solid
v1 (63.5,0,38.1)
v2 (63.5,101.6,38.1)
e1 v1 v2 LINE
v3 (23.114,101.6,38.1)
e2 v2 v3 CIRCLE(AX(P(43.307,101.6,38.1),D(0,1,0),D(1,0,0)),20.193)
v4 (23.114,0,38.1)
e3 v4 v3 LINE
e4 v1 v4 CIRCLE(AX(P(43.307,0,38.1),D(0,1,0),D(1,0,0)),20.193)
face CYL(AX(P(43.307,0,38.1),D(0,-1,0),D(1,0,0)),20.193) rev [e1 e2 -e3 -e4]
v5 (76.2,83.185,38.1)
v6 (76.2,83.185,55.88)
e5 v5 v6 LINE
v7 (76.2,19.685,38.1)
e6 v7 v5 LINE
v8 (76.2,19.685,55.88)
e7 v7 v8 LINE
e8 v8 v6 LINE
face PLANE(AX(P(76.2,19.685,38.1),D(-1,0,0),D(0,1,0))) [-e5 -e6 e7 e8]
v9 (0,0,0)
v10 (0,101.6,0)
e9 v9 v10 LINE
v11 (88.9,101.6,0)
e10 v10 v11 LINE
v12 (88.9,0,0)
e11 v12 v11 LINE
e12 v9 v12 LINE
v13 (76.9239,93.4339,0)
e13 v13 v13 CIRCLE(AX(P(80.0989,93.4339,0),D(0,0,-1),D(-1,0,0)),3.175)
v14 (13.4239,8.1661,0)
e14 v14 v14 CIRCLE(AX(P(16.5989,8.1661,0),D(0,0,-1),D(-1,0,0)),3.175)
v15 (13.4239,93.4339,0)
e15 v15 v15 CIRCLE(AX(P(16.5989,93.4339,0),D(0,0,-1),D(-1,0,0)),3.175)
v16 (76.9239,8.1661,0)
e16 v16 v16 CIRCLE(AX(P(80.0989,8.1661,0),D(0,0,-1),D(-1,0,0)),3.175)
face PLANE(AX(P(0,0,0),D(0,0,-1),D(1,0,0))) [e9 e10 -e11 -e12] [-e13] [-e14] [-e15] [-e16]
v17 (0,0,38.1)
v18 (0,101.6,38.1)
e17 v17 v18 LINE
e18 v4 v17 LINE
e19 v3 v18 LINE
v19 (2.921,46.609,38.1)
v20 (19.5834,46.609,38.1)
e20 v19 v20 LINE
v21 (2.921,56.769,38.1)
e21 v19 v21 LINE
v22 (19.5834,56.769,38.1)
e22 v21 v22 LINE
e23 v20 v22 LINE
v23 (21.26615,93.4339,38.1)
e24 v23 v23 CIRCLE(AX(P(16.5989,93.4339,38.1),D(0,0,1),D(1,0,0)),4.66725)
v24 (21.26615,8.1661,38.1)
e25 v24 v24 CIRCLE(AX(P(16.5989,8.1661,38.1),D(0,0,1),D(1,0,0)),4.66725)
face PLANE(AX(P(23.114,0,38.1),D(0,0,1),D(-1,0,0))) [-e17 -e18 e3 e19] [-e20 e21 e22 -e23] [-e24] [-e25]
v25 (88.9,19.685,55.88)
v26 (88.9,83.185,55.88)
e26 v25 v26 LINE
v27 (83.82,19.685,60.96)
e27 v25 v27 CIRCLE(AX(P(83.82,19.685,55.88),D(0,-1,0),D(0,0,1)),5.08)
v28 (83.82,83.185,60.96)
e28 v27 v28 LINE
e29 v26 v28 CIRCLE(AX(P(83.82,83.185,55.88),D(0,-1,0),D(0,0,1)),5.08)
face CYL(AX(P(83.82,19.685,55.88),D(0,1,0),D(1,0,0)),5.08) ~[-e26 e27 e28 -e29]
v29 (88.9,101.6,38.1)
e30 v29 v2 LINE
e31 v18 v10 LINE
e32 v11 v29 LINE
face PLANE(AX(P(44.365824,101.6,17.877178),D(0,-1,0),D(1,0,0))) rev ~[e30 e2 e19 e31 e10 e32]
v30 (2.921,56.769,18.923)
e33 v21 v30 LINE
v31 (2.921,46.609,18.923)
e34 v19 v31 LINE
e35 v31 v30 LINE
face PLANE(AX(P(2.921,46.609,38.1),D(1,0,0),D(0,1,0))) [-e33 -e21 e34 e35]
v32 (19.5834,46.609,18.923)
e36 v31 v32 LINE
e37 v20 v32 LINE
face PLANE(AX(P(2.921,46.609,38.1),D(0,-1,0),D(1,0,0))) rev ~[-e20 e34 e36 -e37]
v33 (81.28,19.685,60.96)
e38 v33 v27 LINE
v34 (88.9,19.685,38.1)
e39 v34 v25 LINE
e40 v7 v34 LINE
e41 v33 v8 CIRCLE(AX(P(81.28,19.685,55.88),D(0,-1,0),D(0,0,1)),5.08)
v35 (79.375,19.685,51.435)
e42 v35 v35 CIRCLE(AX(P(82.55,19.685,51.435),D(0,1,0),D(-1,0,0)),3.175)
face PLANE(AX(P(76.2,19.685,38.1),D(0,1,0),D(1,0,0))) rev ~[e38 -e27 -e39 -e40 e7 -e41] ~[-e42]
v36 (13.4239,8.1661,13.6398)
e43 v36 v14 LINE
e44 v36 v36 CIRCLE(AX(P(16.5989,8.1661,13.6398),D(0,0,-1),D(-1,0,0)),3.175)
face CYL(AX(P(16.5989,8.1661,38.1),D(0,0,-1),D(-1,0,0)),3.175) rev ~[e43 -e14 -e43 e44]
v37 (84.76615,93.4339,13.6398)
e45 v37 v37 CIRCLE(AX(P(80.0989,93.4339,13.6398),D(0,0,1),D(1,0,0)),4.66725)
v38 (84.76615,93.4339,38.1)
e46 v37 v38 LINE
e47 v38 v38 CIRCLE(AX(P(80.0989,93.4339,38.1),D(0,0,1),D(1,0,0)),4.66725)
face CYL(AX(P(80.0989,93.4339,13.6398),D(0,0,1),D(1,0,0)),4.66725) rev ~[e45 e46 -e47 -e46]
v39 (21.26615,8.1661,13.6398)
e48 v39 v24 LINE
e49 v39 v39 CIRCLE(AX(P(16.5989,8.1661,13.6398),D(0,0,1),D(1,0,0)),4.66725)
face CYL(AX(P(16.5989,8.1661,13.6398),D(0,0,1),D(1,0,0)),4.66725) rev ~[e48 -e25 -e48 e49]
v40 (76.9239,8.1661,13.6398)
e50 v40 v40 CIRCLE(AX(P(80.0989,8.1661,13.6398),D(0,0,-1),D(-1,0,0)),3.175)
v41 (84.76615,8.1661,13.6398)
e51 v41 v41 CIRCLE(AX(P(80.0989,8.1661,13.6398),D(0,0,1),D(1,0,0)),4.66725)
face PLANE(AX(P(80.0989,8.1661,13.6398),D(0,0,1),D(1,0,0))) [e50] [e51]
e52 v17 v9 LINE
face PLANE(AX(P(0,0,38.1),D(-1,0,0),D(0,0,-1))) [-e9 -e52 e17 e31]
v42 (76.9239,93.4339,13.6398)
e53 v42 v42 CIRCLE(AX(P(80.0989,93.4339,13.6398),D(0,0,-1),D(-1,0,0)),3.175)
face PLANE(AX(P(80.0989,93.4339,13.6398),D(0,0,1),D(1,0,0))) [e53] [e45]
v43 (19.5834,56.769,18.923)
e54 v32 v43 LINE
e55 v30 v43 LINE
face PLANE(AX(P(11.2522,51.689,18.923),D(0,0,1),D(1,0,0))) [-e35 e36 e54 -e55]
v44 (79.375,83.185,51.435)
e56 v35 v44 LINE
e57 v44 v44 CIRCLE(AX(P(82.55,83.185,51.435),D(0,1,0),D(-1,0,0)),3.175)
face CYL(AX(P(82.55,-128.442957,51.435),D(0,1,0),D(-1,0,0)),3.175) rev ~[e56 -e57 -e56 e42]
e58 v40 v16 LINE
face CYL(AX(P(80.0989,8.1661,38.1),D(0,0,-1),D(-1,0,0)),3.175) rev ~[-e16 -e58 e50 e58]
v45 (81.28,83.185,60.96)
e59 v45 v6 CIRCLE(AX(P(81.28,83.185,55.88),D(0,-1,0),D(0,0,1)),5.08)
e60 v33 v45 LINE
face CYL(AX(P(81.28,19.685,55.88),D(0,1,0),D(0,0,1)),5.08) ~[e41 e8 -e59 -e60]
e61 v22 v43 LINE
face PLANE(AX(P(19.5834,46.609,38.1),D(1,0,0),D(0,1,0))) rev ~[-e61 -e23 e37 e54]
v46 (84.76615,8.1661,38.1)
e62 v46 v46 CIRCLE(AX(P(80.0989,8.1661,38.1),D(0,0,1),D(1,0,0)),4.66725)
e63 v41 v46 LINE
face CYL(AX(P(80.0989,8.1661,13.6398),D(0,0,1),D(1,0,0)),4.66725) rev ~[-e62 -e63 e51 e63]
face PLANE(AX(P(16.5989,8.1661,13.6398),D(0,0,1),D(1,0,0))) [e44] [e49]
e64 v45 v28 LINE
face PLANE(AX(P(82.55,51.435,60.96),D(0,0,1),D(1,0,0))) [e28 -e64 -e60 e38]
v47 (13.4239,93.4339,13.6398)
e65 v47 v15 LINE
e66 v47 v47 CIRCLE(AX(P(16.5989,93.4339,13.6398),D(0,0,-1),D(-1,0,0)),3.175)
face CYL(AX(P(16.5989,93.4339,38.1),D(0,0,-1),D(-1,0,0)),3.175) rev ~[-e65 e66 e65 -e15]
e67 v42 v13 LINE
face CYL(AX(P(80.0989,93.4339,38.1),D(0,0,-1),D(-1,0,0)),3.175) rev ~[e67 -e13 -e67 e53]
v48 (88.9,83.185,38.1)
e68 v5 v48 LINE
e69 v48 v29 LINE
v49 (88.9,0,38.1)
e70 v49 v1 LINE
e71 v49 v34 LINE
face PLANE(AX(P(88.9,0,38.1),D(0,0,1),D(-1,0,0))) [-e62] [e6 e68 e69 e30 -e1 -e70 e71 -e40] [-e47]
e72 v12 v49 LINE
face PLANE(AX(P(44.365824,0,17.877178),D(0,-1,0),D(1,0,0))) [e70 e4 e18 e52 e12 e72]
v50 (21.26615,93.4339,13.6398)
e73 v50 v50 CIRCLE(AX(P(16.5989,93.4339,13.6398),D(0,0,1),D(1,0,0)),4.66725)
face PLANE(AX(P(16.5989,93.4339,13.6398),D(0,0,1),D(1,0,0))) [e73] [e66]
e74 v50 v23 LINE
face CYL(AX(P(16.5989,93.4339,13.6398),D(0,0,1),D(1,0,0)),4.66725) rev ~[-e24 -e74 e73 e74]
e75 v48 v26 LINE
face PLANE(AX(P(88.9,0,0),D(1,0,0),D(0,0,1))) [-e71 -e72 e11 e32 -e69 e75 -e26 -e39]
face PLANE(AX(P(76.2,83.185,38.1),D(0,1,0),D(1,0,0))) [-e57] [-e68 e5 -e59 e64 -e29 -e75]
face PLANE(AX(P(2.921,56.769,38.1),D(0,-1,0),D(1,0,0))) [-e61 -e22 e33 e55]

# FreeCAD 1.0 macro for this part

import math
import FreeCAD as App
import Part
import Sketcher

V = App.Vector
Q = App.Units.Quantity


def edges_at(feature, points):
    """Names of the edges that pass closest to the given points."""
    edges = feature.Shape.Edges
    near = lambda p: min(range(len(edges)), key=lambda i: edges[i].distToShape(Part.Vertex(*p))[0])
    return sorted({f"Edge{near(p) + 1}" for p in points})


def add_polygon(sketch, points):
    """Adds a closed chain of lines whose ends are joined by coincident constraints."""
    first, n = sketch.GeometryCount, len(points)
    for a, b in zip(points, points[1:] + points[:1]):
        sketch.addGeometry(Part.LineSegment(App.Vector(*a, 0), App.Vector(*b, 0)), False)
    for i in range(n):
        sketch.addConstraint(Sketcher.Constraint("Coincident", first + i, 2, first + (i + 1) % n, 1))

doc = App.newDocument("Part")
body = doc.addObject("PartDesign::Body", "Body")

sketch1 = doc.addObject("Sketcher::SketchObject", "Sketch")
body.addObject(sketch1)
sketch1.AttachmentSupport = (doc.XZ_Plane, [""])
sketch1.MapMode = "FlatFace"
sketch1.addGeometry([
    Part.LineSegment(V(0, 38.1, 0), V(0, 0, 0)),
    Part.LineSegment(V(0, 0, 0), V(88.9, 0, 0)),
    Part.LineSegment(V(88.9, 0, 0), V(88.9, 38.1, 0)),
    Part.LineSegment(V(88.9, 38.1, 0), V(63.5, 38.1, 0)),
    Part.ArcOfCircle(Part.Circle(V(43.307, 38.1, 0), V(0, 0, 1), 20.193), math.radians(180), math.radians(360)),
    Part.LineSegment(V(23.114, 38.1, 0), V(0, 38.1, 0)),
], False)
sketch1.addConstraint([
    Sketcher.Constraint("Coincident", 0, 2, 1, 1),
    Sketcher.Constraint("Coincident", 1, 2, 2, 1),
    Sketcher.Constraint("Coincident", 2, 2, 3, 1),
    Sketcher.Constraint("Coincident", 3, 2, 4, 2),
    Sketcher.Constraint("Coincident", 4, 1, 5, 1),
    Sketcher.Constraint("Coincident", 5, 2, 0, 1),
    Sketcher.Constraint("Vertical", 0),
    Sketcher.Constraint("Horizontal", 1),
    Sketcher.Constraint("Vertical", 2),
    Sketcher.Constraint("Horizontal", 3),
    Sketcher.Constraint("Horizontal", 5),
    Sketcher.Constraint("Coincident", 0, 2, -1, 1),
    Sketcher.Constraint("Horizontal", 4, 3, 2, 2),
    Sketcher.Constraint("Horizontal", 3, 2, 4, 1),
    Sketcher.Constraint("DistanceX", 3, 2, 3, 1, Q("1 in")),
    Sketcher.Constraint("DistanceX", 1, 1, 1, 2, Q("3.5 in")),
    Sketcher.Constraint("DistanceY", 0, 2, 0, 1, Q("1.5 in")),
    Sketcher.Constraint("Radius", 4, Q("0.795 in")),
])
pad1 = doc.addObject("PartDesign::Pad", "Pad")
body.addObject(pad1)
pad1.Profile = sketch1
pad1.Length = Q("4 in")
pad1.Reversed = True

sketch2 = doc.addObject("Sketcher::SketchObject", "Sketch001")
body.addObject(sketch2)
sketch2.AttachmentSupport = (doc.XY_Plane, [""])
sketch2.MapMode = "FlatFace"
sketch2.AttachmentOffset = App.Placement(V(0, 0, 1.5 * 25.4), App.Rotation())
sketch2.addGeometry([
    Part.Circle(V(16.5989, 8.1661, 0), V(0, 0, 1), 3.175),
    Part.Circle(V(16.5989, 93.4339, 0), V(0, 0, 1), 3.175),
    Part.Circle(V(80.0989, 93.4339, 0), V(0, 0, 1), 3.175),
    Part.Circle(V(80.0989, 8.1661, 0), V(0, 0, 1), 3.175),
], False)
sketch2.addConstraint([
    Sketcher.Constraint("Equal", 0, 1),
    Sketcher.Constraint("Equal", 1, 2),
    Sketcher.Constraint("Equal", 2, 3),
    Sketcher.Constraint("Horizontal", 1, 3, 2, 3),
    Sketcher.Constraint("Horizontal", 0, 3, 3, 3),
    Sketcher.Constraint("Vertical", 0, 3, 1, 3),
    Sketcher.Constraint("Vertical", 2, 3, 3, 3),
    Sketcher.Constraint("Diameter", 0, Q("0.25 in")),
    Sketcher.Constraint("DistanceX", 1, 3, 2, 3, Q("2.5 in")),
    Sketcher.Constraint("DistanceY", 0, 3, 1, 3, Q("3.357 in")),
    Sketcher.Constraint("DistanceX", -1, 1, 0, 3, Q("0.6535 in")),
    Sketcher.Constraint("DistanceY", -1, 1, 0, 3, Q("0.3215 in")),
])
doc.recompute()
hole = doc.addObject("PartDesign::Hole", "Hole")
body.addObject(hole)
hole.Profile = sketch2
hole.ThreadType = "None"
hole.Diameter = Q("0.25 in")
hole.DepthType = "ThroughAll"
hole.HoleCutType = "Counterbore"
hole.HoleCutDiameter = Q("0.3675 in")
hole.HoleCutDepth = Q("0.963 in")

sketch3 = doc.addObject("Sketcher::SketchObject", "Sketch002")
body.addObject(sketch3)
sketch3.AttachmentSupport = (doc.XY_Plane, [""])
sketch3.MapMode = "FlatFace"
sketch3.AttachmentOffset = App.Placement(V(0, 0, 1.5 * 25.4), App.Rotation())
add_polygon(sketch3, [(76.2, 83.185), (76.2, 19.685), (88.9, 19.685), (88.9, 83.185)])
sketch3.addConstraint([
    Sketcher.Constraint("Vertical", 0),
    Sketcher.Constraint("Horizontal", 1),
    Sketcher.Constraint("Vertical", 2),
    Sketcher.Constraint("Horizontal", 3),
    Sketcher.Constraint("DistanceX", 1, 1, 1, 2, Q("0.5 in")),
    Sketcher.Constraint("DistanceY", 0, 2, 0, 1, Q("2.5 in")),
    Sketcher.Constraint("DistanceX", -1, 1, 0, 2, Q("3 in")),
    Sketcher.Constraint("DistanceY", -1, 1, 0, 2, Q("0.775 in")),
])
pad2 = doc.addObject("PartDesign::Pad", "Pad001")
body.addObject(pad2)
pad2.Profile = sketch3
pad2.Length = Q("0.9 in")

sketch4 = doc.addObject("Sketcher::SketchObject", "Sketch003")
body.addObject(sketch4)
sketch4.AttachmentSupport = (doc.XZ_Plane, [""])
sketch4.MapMode = "FlatFace"
sketch4.AttachmentOffset = App.Placement(V(0, 0, -0.775 * 25.4), App.Rotation())
sketch4.addGeometry(Part.Circle(V(82.55, 51.435, 0), V(0, 0, 1), 3.175), False)
sketch4.addConstraint([
    Sketcher.Constraint("Diameter", 0, Q("0.25 in")),
    Sketcher.Constraint("DistanceX", -1, 1, 0, 3, Q("3.25 in")),
    Sketcher.Constraint("DistanceY", -1, 1, 0, 3, Q("2.025 in")),
])
doc.recompute()
hole2 = doc.addObject("PartDesign::Hole", "Hole001")
body.addObject(hole2)
hole2.Profile = sketch4
hole2.ThreadType = "None"
hole2.Diameter = Q("0.25 in")
hole2.DepthType = "ThroughAll"
doc.recompute()

fillet = doc.addObject("PartDesign::Fillet", "Fillet")
body.addObject(fillet)
fillet.Base = (hole2, edges_at(hole2, [(76.2, 51.435, 60.96), (88.9, 51.435, 60.96)]))
fillet.Radius = Q("0.2 in")

sketch5 = doc.addObject("Sketcher::SketchObject", "Sketch004")
body.addObject(sketch5)
sketch5.AttachmentSupport = (doc.XY_Plane, [""])
sketch5.MapMode = "FlatFace"
sketch5.AttachmentOffset = App.Placement(V(0, 0, 1.5 * 25.4), App.Rotation())
add_polygon(sketch5, [(2.921, 56.769), (2.921, 46.609), (19.5834, 46.609), (19.5834, 56.769)])
sketch5.addConstraint([
    Sketcher.Constraint("Vertical", 0),
    Sketcher.Constraint("Horizontal", 1),
    Sketcher.Constraint("Vertical", 2),
    Sketcher.Constraint("Horizontal", 3),
    Sketcher.Constraint("DistanceY", 0, 2, 0, 1, Q("0.4 in")),
    Sketcher.Constraint("DistanceX", 1, 1, 1, 2, Q("0.656 in")),
    Sketcher.Constraint("DistanceX", -1, 1, 0, 2, Q("0.115 in")),
    Sketcher.Constraint("DistanceY", -1, 1, 0, 2, Q("1.835 in")),
])
pocket1 = doc.addObject("PartDesign::Pocket", "Pocket")
body.addObject(pocket1)
pocket1.Profile = sketch5
pocket1.Length = Q("0.755 in")

doc.recompute()
